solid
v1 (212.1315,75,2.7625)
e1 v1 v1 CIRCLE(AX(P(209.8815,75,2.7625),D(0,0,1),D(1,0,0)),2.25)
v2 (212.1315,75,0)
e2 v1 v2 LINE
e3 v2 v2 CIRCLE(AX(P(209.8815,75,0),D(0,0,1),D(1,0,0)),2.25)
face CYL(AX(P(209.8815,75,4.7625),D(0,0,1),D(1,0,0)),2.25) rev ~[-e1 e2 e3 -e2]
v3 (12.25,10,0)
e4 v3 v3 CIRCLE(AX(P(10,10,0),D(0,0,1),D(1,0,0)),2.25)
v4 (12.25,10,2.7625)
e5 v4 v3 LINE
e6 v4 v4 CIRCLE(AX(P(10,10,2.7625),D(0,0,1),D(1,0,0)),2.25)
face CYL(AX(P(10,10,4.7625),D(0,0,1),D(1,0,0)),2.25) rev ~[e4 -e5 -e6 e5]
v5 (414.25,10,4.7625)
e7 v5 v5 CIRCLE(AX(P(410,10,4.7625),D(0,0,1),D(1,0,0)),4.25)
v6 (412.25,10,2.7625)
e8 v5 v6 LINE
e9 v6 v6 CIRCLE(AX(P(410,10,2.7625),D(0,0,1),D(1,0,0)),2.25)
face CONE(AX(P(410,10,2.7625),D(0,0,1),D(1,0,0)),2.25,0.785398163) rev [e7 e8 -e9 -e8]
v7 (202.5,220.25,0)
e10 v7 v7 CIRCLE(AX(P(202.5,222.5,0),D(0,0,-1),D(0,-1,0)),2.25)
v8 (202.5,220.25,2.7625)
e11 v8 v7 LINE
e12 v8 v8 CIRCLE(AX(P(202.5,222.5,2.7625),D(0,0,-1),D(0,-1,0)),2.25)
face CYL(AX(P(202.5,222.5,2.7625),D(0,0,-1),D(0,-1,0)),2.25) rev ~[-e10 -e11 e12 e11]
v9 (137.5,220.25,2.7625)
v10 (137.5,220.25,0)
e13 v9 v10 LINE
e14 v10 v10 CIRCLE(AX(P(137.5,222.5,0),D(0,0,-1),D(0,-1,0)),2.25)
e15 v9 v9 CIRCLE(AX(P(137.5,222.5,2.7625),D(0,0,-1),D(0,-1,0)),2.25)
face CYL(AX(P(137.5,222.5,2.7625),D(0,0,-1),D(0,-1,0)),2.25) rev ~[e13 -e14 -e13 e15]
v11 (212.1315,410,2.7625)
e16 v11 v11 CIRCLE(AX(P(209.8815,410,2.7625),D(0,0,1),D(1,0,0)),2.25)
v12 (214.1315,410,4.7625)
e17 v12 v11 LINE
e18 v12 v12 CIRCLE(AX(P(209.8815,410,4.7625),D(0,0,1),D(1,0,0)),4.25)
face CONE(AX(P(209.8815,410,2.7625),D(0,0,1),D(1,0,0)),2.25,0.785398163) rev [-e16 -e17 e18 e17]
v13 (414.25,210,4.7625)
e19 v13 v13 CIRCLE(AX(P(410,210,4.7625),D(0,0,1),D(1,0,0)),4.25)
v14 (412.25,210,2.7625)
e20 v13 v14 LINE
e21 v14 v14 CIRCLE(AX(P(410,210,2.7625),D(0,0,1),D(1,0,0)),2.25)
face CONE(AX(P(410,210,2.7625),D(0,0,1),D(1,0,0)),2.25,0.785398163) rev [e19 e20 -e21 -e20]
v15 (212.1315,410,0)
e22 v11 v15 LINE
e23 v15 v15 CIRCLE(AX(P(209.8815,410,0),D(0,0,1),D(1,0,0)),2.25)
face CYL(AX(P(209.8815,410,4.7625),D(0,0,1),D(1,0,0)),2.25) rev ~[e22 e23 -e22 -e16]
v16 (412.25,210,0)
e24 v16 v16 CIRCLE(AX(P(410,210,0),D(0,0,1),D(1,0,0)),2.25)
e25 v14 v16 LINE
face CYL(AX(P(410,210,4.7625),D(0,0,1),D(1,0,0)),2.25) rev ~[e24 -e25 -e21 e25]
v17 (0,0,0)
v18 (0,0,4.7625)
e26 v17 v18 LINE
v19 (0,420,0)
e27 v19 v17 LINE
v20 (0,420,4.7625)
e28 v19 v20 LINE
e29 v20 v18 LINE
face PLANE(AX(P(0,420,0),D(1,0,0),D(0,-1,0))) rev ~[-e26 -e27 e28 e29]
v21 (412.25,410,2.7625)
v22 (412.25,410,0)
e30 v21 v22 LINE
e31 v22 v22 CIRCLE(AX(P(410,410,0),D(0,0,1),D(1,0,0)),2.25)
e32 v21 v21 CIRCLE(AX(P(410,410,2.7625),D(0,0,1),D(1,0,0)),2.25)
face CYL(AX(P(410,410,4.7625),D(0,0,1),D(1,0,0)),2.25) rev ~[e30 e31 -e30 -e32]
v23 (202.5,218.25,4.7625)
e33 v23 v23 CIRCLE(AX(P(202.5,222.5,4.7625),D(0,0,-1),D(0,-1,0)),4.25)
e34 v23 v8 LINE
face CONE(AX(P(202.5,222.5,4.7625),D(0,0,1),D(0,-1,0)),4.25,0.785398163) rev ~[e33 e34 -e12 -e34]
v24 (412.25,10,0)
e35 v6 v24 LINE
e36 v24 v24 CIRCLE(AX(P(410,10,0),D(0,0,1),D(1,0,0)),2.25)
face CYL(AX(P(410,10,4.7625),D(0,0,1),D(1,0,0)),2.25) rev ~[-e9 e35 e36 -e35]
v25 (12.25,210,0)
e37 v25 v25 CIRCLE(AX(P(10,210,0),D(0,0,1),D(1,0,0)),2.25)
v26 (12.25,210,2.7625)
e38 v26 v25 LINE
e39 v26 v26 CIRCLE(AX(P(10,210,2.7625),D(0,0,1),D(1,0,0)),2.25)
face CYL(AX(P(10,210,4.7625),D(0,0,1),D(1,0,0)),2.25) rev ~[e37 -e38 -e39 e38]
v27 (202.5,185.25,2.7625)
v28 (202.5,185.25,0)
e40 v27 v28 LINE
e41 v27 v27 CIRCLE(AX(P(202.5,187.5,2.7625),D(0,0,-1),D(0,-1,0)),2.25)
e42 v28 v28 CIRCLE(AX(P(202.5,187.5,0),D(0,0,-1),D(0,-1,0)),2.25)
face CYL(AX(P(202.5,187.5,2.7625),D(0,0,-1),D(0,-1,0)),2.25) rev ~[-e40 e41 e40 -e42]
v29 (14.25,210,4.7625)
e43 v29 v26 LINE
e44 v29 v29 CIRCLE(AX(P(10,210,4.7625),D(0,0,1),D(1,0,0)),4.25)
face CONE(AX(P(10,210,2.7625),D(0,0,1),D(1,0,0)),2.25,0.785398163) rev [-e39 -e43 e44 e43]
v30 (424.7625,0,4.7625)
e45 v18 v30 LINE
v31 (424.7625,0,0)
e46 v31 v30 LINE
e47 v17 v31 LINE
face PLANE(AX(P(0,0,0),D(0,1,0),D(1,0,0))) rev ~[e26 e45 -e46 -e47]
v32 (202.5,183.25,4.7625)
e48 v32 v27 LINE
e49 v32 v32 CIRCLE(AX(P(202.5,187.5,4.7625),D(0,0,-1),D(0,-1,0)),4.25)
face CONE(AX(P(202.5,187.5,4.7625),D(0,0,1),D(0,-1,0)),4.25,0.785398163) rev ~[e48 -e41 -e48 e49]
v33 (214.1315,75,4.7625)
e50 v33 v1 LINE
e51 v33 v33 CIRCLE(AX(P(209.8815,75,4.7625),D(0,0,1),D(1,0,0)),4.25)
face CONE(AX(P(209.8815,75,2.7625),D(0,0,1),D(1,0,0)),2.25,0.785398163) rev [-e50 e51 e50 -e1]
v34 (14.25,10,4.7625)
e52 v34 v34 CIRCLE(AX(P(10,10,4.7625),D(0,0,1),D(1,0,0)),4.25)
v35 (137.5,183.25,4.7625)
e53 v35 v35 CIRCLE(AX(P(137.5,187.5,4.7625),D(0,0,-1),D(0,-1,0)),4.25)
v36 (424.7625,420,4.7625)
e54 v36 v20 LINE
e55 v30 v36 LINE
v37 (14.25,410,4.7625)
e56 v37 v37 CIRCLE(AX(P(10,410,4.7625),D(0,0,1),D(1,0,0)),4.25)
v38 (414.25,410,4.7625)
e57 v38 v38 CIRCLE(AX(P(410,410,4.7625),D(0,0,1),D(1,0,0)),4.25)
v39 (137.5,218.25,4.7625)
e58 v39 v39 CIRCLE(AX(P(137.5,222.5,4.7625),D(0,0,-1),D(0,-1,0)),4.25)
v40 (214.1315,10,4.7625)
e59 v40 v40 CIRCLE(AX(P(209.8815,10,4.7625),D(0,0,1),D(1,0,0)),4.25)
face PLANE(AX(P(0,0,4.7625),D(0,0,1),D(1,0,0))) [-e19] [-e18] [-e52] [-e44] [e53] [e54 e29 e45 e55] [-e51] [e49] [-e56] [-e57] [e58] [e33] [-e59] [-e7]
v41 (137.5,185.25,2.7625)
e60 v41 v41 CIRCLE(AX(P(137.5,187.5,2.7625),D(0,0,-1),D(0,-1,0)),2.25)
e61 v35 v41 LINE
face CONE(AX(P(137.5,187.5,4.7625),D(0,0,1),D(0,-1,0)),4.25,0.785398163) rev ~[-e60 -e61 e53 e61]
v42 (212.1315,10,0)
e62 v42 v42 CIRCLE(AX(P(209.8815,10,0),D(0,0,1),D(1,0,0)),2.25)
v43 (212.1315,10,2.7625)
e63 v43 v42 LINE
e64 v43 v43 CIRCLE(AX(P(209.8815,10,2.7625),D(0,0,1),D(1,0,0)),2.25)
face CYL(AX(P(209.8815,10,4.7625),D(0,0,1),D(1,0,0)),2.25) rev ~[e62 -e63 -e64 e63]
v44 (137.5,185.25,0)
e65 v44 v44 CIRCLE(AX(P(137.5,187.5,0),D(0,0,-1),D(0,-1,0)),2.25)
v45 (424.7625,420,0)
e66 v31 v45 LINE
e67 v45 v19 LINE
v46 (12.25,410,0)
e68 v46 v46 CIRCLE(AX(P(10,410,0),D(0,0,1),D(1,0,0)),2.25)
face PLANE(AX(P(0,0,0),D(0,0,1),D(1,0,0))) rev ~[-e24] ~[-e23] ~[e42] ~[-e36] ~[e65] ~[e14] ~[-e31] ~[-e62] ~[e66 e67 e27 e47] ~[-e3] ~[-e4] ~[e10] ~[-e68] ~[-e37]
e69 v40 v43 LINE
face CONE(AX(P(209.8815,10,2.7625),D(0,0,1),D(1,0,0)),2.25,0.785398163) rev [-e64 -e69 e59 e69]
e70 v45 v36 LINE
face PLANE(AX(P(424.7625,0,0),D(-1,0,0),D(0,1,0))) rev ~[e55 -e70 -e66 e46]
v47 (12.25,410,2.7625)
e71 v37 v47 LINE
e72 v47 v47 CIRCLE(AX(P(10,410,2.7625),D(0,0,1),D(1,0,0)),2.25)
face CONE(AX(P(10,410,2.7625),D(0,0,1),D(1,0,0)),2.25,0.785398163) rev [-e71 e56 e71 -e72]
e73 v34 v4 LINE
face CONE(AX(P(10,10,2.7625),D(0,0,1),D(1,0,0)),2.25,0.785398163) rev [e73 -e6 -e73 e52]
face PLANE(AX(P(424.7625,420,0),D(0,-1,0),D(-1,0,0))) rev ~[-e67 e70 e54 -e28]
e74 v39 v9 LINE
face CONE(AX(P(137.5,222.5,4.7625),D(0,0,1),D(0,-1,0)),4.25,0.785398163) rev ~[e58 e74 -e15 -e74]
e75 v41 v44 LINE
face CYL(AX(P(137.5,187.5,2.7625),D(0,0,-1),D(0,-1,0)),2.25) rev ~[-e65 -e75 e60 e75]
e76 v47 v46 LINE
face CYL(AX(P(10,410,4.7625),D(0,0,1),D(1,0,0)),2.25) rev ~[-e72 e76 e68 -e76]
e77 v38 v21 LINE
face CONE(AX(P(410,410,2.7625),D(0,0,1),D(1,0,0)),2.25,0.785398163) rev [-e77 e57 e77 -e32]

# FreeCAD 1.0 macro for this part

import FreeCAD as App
import Part
import Sketcher
from FreeCAD import Vector


def edges_at(feature, points):
    """Names of the edges that pass closest to the given points."""
    edges = feature.Shape.Edges
    near = lambda p: min(range(len(edges)), key=lambda i: edges[i].distToShape(Part.Vertex(*p))[0])
    return sorted({f"Edge{near(p) + 1}" for p in points})


def add_polygon(sketch, points):
    """Adds a closed chain of lines whose ends are joined by coincident constraints."""
    first, n = sketch.GeometryCount, len(points)
    for a, b in zip(points, points[1:] + points[:1]):
        sketch.addGeometry(Part.LineSegment(App.Vector(*a, 0), App.Vector(*b, 0)), False)
    for i in range(n):
        sketch.addConstraint(Sketcher.Constraint("Coincident", first + i, 2, first + (i + 1) % n, 1))

doc = App.newDocument("Part")
body = doc.addObject("PartDesign::Body", "Body")

sketch1 = doc.addObject("Sketcher::SketchObject", "Sketch")
body.addObject(sketch1)
sketch1.AttachmentSupport = (doc.XY_Plane, [""])
sketch1.MapMode = "FlatFace"
add_polygon(sketch1, [(0, 420), (0, 0), (425, 0), (425, 420)])
sketch1.addConstraint([
    Sketcher.Constraint("Vertical", 0),
    Sketcher.Constraint("Horizontal", 1),
    Sketcher.Constraint("Vertical", 2),
    Sketcher.Constraint("Horizontal", 3),
    Sketcher.Constraint("Coincident", 0, 2, -1, 1),
    Sketcher.Constraint("DistanceY", 0, 2, 0, 1, 420.0),
    Sketcher.Constraint("DistanceX", 1, 1, 1, 2, 424.7625),
])
pad1 = doc.addObject("PartDesign::Pad", "Pad")
body.addObject(pad1)
pad1.Profile = sketch1
pad1.Length = 4.7625

sketch2 = doc.addObject("Sketcher::SketchObject", "Sketch001")
body.addObject(sketch2)
sketch2.AttachmentSupport = (doc.XY_Plane, [""])
sketch2.MapMode = "FlatFace"
sketch2.AttachmentOffset = App.Placement(Vector(0, 0, 4.7625), App.Rotation())
sketch2.addGeometry([
    Part.Circle(Vector(10, 410, 0), Vector(0, 0, 1), 2.2),
    Part.Circle(Vector(410, 410, 0), Vector(0, 0, 1), 2.2),
    Part.Circle(Vector(10, 10, 0), Vector(0, 0, 1), 2.2),
    Part.Circle(Vector(410, 10, 0), Vector(0, 0, 1), 2.2),
    Part.Circle(Vector(10, 210, 0), Vector(0, 0, 1), 2.2),
    Part.Circle(Vector(410, 210, 0), Vector(0, 0, 1), 2.2),
    Part.Circle(Vector(209.9, 410, 0), Vector(0, 0, 1), 2.2),
    Part.Circle(Vector(209.9, 10, 0), Vector(0, 0, 1), 2.2),
    Part.Circle(Vector(209.9, 75, 0), Vector(0, 0, 1), 2.2),
], False)
sketch2.addConstraint([
    Sketcher.Constraint("Equal", 0, 1),
    Sketcher.Constraint("Equal", 1, 2),
    Sketcher.Constraint("Equal", 2, 3),
    Sketcher.Constraint("Equal", 3, 4),
    Sketcher.Constraint("Equal", 4, 5),
    Sketcher.Constraint("Equal", 5, 6),
    Sketcher.Constraint("Equal", 6, 7),
    Sketcher.Constraint("Equal", 7, 8),
    Sketcher.Constraint("Horizontal", 0, 3, 1, 3),
    Sketcher.Constraint("Horizontal", 2, 3, 3, 3),
    Sketcher.Constraint("Horizontal", 4, 3, 5, 3),
    Sketcher.Constraint("Horizontal", 1, 3, 6, 3),
    Sketcher.Constraint("Horizontal", 3, 3, 7, 3),
    Sketcher.Constraint("Vertical", 0, 3, 2, 3),
    Sketcher.Constraint("Vertical", 1, 3, 3, 3),
    Sketcher.Constraint("Vertical", 2, 3, 4, 3),
    Sketcher.Constraint("Vertical", 3, 3, 5, 3),
    Sketcher.Constraint("Vertical", 6, 3, 7, 3),
    Sketcher.Constraint("Vertical", 7, 3, 8, 3),
    Sketcher.Constraint("Diameter", 0, 4.5),
    Sketcher.Constraint("DistanceX", -1, 1, 0, 3, 10.0),
    Sketcher.Constraint("DistanceY", -1, 1, 2, 3, 10.0),
    Sketcher.Constraint("DistanceY", -1, 1, 4, 3, 210.0),
    Sketcher.Constraint("DistanceY", -1, 1, 8, 3, 75.0),
    Sketcher.Constraint("DistanceY", -1, 1, 0, 3, 410.0),
    Sketcher.Constraint("DistanceX", -1, 1, 1, 3, 410.0),
    Sketcher.Constraint("DistanceX", -1, 1, 6, 3, 209.8815),
])
pocket1 = doc.addObject("PartDesign::Pocket", "Pocket")
body.addObject(pocket1)
pocket1.Profile = sketch2
pocket1.Type = "UpToFirst"
doc.recompute()

chamfer = doc.addObject("PartDesign::Chamfer", "Chamfer")
body.addObject(chamfer)
chamfer.Base = (pocket1, edges_at(pocket1, [
    (7.75, 410, 4.763),
    (207.631, 410, 4.763),
    (407.75, 410, 4.763),
    (407.75, 210, 4.763),
    (7.75, 210, 4.763),
    (7.75, 10, 4.763),
    (207.631, 10, 4.763),
    (407.75, 10, 4.763),
    (207.631, 75, 4.763),
]))
chamfer.Size = 2

sketch3 = doc.addObject("Sketcher::SketchObject", "Sketch002")
body.addObject(sketch3)
sketch3.AttachmentSupport = (doc.XY_Plane, [""])
sketch3.MapMode = "FlatFace"
sketch3.AttachmentOffset = App.Placement(Vector(0, 0, 4.7625), App.Rotation())
sketch3.addGeometry([
    Part.Circle(Vector(137.5, 222.5, 0), Vector(0, 0, 1), 2.2),
    Part.Circle(Vector(202.5, 222.5, 0), Vector(0, 0, 1), 2.2),
    Part.Circle(Vector(137.5, 187.5, 0), Vector(0, 0, 1), 2.2),
    Part.Circle(Vector(202.5, 187.5, 0), Vector(0, 0, 1), 2.2),
], False)
sketch3.addConstraint([
    Sketcher.Constraint("Equal", 0, 1),
    Sketcher.Constraint("Equal", 1, 2),
    Sketcher.Constraint("Equal", 2, 3),
    Sketcher.Constraint("Horizontal", 0, 3, 1, 3),
    Sketcher.Constraint("Horizontal", 2, 3, 3, 3),
    Sketcher.Constraint("Vertical", 0, 3, 2, 3),
    Sketcher.Constraint("Vertical", 1, 3, 3, 3),
    Sketcher.Constraint("Diameter", 0, 4.5),
    Sketcher.Constraint("DistanceX", 0, 3, 1, 3, 65.0),
    Sketcher.Constraint("DistanceY", 2, 3, 0, 3, 35.0),
    Sketcher.Constraint("DistanceX", -1, 1, 0, 3, 137.5),
    Sketcher.Constraint("DistanceY", -1, 1, 0, 3, 222.5),
])
doc.recompute()
hole = doc.addObject("PartDesign::Hole", "Hole")
body.addObject(hole)
hole.Profile = sketch3
hole.ThreadType = "None"
hole.Diameter = 4.5
hole.DepthType = "ThroughAll"
hole.HoleCutType = "Countersink"
hole.HoleCutDiameter = 8.5
hole.HoleCutCountersinkAngle = 90

doc.recompute()
